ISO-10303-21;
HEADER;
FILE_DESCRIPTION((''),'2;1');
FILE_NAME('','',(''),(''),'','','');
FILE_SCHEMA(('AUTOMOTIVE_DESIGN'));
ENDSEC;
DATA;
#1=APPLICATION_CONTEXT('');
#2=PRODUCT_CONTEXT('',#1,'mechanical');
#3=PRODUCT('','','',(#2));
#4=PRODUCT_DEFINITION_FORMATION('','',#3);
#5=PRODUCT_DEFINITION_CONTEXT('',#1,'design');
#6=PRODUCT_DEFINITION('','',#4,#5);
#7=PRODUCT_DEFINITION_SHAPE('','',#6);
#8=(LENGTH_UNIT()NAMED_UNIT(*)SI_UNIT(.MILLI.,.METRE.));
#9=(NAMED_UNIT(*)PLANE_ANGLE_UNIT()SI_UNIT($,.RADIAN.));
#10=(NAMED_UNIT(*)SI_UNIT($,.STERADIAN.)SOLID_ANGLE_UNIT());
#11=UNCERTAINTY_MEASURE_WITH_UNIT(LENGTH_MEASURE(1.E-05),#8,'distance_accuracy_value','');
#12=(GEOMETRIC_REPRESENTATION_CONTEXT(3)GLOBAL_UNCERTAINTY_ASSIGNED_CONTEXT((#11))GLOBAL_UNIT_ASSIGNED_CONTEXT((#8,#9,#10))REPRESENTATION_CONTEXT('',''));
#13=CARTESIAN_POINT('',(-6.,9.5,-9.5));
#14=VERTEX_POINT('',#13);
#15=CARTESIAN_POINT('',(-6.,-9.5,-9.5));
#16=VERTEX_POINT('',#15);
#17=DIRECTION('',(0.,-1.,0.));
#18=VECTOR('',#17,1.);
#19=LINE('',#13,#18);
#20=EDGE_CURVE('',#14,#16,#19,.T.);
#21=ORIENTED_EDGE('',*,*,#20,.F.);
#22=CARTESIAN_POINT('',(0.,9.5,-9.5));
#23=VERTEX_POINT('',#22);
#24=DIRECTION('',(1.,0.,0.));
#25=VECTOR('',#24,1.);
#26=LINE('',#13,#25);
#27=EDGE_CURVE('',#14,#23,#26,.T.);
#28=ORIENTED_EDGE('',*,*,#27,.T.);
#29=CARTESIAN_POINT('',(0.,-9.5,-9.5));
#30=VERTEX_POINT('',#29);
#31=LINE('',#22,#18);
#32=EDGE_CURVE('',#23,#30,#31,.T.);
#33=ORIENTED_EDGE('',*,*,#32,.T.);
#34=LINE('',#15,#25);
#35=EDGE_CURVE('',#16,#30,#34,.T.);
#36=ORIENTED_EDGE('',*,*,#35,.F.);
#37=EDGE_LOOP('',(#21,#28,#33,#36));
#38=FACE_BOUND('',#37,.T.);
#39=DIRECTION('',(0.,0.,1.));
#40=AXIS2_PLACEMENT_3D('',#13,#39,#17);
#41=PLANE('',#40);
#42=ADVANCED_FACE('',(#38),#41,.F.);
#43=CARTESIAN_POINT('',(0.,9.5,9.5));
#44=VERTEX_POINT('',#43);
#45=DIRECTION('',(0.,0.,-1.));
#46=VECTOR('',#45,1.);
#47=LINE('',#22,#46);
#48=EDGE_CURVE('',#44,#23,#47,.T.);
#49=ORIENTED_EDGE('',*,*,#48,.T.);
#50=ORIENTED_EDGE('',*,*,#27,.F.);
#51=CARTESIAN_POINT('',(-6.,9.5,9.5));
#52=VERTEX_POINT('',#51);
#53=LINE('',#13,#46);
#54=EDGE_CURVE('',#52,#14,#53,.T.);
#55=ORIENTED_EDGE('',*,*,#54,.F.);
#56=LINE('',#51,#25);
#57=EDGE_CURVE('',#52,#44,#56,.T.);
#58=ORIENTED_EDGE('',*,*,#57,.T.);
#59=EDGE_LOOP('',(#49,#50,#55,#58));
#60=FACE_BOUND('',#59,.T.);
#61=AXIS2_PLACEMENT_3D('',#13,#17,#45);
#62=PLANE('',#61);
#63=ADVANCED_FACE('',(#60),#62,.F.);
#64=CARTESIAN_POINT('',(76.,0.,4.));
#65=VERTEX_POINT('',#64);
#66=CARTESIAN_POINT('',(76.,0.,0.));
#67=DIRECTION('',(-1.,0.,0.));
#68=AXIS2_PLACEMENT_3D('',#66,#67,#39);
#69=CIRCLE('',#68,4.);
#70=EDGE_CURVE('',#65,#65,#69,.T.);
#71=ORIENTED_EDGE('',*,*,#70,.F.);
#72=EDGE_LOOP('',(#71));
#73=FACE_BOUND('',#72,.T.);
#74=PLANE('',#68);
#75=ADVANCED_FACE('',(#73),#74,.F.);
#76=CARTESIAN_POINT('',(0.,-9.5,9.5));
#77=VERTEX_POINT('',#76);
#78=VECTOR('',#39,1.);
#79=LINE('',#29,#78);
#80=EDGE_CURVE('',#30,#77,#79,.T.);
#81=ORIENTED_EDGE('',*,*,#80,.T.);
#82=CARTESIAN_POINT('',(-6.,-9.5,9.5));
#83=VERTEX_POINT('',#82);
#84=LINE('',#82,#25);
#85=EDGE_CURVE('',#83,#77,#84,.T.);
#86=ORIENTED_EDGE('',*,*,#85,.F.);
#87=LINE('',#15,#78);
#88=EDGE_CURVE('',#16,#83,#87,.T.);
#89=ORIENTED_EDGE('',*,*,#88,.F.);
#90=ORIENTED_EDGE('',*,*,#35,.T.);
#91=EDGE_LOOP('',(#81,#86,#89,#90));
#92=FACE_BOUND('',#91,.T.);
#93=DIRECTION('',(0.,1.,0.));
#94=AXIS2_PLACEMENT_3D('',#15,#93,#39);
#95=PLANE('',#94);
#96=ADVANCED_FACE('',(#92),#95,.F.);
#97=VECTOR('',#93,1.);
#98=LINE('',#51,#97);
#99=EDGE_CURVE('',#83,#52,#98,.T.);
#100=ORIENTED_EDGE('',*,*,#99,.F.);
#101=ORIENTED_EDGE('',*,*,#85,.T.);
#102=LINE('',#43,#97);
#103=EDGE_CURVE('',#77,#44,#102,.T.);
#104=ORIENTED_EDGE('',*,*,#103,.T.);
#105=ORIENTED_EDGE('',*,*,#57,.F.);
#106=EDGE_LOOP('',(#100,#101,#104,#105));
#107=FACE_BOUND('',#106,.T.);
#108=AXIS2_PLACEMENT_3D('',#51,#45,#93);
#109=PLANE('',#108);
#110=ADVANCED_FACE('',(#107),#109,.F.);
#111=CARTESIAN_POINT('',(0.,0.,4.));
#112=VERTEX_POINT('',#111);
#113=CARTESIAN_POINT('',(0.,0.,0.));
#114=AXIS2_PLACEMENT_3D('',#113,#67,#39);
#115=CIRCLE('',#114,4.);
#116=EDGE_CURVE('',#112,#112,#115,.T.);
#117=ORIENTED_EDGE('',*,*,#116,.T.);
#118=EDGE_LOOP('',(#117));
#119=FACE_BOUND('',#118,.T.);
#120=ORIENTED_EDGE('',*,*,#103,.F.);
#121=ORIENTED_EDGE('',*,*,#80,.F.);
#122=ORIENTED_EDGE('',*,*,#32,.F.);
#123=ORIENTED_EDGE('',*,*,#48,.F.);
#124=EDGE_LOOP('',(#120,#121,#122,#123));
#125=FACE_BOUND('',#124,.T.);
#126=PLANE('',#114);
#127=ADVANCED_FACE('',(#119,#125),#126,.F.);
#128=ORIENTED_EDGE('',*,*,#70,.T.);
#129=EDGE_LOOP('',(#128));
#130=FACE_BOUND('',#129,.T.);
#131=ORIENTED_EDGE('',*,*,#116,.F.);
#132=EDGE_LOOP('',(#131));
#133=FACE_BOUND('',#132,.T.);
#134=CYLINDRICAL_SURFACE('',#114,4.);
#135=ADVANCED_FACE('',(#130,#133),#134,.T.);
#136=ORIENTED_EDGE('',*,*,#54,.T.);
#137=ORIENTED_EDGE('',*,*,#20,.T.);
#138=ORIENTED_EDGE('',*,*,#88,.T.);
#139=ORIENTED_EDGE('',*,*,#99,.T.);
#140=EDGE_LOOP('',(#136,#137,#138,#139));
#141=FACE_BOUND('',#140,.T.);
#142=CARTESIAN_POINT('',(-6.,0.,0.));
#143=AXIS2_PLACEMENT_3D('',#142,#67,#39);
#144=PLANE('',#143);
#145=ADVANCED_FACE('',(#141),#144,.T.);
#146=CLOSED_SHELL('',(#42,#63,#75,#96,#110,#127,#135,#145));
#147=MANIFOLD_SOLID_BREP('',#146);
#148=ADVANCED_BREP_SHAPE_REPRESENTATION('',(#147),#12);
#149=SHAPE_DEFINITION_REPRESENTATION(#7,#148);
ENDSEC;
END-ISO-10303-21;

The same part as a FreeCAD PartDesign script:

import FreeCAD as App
import Part
import Sketcher
from FreeCAD import Vector
Q = App.Units.Quantity

doc = App.newDocument("Part")
body = doc.addObject("PartDesign::Body", "Body")

sketch1 = body.newObject("Sketcher::SketchObject", "Sketch")
sketch1.AttachmentSupport = (doc.getObject("XY_Plane"), [""])
sketch1.MapMode = "FlatFace"
sketch1.addGeometry(Part.LineSegment(Vector(0, 4, 0), Vector(0, 0, 0)), False)
sketch1.addGeometry(Part.LineSegment(Vector(0, 0, 0), Vector(76, 0, 0)), False)
sketch1.addGeometry(Part.LineSegment(Vector(76, 0, 0), Vector(76, 4, 0)), False)
sketch1.addGeometry(Part.LineSegment(Vector(76, 4, 0), Vector(0, 4, 0)), False)
sketch1.addConstraint(Sketcher.Constraint("Coincident", 0, 2, 1, 1))
sketch1.addConstraint(Sketcher.Constraint("Coincident", 1, 2, 2, 1))
sketch1.addConstraint(Sketcher.Constraint("Coincident", 2, 2, 3, 1))
sketch1.addConstraint(Sketcher.Constraint("Coincident", 3, 2, 0, 1))
sketch1.addConstraint(Sketcher.Constraint("Vertical", 0))
sketch1.addConstraint(Sketcher.Constraint("Horizontal", 1))
sketch1.addConstraint(Sketcher.Constraint("Vertical", 2))
sketch1.addConstraint(Sketcher.Constraint("Horizontal", 3))
sketch1.addConstraint(Sketcher.Constraint("Coincident", 0, 2, -1, 1))
sketch1.addConstraint(Sketcher.Constraint("DistanceX", 1, 1, 1, 2, Q("76 mm")))
sketch1.addConstraint(Sketcher.Constraint("DistanceY", 0, 2, 0, 1, Q("4 mm")))
revolution = body.newObject("PartDesign::Revolution", "Revolution")
revolution.Profile = sketch1
revolution.ReferenceAxis = (sketch1, ["H_Axis"])
revolution.Angle = 360

sketch2 = body.newObject("Sketcher::SketchObject", "Sketch001")
sketch2.AttachmentSupport = (doc.getObject("YZ_Plane"), [""])
sketch2.MapMode = "FlatFace"
sketch2.addGeometry(Part.LineSegment(Vector(10, -10, 0), Vector(-10, -10, 0)), False)
sketch2.addGeometry(Part.LineSegment(Vector(-10, -10, 0), Vector(-10, 10, 0)), False)
sketch2.addGeometry(Part.LineSegment(Vector(-10, 10, 0), Vector(10, 10, 0)), False)
sketch2.addGeometry(Part.LineSegment(Vector(10, 10, 0), Vector(10, -10, 0)), False)
sketch2.addConstraint(Sketcher.Constraint("Coincident", 0, 2, 1, 1))
sketch2.addConstraint(Sketcher.Constraint("Coincident", 1, 2, 2, 1))
sketch2.addConstraint(Sketcher.Constraint("Coincident", 2, 2, 3, 1))
sketch2.addConstraint(Sketcher.Constraint("Coincident", 3, 2, 0, 1))
sketch2.addConstraint(Sketcher.Constraint("Horizontal", 0))
sketch2.addConstraint(Sketcher.Constraint("Vertical", 1))
sketch2.addConstraint(Sketcher.Constraint("Horizontal", 2))
sketch2.addConstraint(Sketcher.Constraint("Vertical", 3))
sketch2.addConstraint(Sketcher.Constraint("Symmetric", 0, 2, 2, 2, -1, 1))
sketch2.addConstraint(Sketcher.Constraint("Equal", 2, 1))
sketch2.addConstraint(Sketcher.Constraint("DistanceX", 0, 2, 0, 1, Q("19 mm")))
pad1 = body.newObject("PartDesign::Pad", "Pad")
pad1.Profile = sketch2
pad1.Length = 6
pad1.Reversed = True

doc.recompute()
